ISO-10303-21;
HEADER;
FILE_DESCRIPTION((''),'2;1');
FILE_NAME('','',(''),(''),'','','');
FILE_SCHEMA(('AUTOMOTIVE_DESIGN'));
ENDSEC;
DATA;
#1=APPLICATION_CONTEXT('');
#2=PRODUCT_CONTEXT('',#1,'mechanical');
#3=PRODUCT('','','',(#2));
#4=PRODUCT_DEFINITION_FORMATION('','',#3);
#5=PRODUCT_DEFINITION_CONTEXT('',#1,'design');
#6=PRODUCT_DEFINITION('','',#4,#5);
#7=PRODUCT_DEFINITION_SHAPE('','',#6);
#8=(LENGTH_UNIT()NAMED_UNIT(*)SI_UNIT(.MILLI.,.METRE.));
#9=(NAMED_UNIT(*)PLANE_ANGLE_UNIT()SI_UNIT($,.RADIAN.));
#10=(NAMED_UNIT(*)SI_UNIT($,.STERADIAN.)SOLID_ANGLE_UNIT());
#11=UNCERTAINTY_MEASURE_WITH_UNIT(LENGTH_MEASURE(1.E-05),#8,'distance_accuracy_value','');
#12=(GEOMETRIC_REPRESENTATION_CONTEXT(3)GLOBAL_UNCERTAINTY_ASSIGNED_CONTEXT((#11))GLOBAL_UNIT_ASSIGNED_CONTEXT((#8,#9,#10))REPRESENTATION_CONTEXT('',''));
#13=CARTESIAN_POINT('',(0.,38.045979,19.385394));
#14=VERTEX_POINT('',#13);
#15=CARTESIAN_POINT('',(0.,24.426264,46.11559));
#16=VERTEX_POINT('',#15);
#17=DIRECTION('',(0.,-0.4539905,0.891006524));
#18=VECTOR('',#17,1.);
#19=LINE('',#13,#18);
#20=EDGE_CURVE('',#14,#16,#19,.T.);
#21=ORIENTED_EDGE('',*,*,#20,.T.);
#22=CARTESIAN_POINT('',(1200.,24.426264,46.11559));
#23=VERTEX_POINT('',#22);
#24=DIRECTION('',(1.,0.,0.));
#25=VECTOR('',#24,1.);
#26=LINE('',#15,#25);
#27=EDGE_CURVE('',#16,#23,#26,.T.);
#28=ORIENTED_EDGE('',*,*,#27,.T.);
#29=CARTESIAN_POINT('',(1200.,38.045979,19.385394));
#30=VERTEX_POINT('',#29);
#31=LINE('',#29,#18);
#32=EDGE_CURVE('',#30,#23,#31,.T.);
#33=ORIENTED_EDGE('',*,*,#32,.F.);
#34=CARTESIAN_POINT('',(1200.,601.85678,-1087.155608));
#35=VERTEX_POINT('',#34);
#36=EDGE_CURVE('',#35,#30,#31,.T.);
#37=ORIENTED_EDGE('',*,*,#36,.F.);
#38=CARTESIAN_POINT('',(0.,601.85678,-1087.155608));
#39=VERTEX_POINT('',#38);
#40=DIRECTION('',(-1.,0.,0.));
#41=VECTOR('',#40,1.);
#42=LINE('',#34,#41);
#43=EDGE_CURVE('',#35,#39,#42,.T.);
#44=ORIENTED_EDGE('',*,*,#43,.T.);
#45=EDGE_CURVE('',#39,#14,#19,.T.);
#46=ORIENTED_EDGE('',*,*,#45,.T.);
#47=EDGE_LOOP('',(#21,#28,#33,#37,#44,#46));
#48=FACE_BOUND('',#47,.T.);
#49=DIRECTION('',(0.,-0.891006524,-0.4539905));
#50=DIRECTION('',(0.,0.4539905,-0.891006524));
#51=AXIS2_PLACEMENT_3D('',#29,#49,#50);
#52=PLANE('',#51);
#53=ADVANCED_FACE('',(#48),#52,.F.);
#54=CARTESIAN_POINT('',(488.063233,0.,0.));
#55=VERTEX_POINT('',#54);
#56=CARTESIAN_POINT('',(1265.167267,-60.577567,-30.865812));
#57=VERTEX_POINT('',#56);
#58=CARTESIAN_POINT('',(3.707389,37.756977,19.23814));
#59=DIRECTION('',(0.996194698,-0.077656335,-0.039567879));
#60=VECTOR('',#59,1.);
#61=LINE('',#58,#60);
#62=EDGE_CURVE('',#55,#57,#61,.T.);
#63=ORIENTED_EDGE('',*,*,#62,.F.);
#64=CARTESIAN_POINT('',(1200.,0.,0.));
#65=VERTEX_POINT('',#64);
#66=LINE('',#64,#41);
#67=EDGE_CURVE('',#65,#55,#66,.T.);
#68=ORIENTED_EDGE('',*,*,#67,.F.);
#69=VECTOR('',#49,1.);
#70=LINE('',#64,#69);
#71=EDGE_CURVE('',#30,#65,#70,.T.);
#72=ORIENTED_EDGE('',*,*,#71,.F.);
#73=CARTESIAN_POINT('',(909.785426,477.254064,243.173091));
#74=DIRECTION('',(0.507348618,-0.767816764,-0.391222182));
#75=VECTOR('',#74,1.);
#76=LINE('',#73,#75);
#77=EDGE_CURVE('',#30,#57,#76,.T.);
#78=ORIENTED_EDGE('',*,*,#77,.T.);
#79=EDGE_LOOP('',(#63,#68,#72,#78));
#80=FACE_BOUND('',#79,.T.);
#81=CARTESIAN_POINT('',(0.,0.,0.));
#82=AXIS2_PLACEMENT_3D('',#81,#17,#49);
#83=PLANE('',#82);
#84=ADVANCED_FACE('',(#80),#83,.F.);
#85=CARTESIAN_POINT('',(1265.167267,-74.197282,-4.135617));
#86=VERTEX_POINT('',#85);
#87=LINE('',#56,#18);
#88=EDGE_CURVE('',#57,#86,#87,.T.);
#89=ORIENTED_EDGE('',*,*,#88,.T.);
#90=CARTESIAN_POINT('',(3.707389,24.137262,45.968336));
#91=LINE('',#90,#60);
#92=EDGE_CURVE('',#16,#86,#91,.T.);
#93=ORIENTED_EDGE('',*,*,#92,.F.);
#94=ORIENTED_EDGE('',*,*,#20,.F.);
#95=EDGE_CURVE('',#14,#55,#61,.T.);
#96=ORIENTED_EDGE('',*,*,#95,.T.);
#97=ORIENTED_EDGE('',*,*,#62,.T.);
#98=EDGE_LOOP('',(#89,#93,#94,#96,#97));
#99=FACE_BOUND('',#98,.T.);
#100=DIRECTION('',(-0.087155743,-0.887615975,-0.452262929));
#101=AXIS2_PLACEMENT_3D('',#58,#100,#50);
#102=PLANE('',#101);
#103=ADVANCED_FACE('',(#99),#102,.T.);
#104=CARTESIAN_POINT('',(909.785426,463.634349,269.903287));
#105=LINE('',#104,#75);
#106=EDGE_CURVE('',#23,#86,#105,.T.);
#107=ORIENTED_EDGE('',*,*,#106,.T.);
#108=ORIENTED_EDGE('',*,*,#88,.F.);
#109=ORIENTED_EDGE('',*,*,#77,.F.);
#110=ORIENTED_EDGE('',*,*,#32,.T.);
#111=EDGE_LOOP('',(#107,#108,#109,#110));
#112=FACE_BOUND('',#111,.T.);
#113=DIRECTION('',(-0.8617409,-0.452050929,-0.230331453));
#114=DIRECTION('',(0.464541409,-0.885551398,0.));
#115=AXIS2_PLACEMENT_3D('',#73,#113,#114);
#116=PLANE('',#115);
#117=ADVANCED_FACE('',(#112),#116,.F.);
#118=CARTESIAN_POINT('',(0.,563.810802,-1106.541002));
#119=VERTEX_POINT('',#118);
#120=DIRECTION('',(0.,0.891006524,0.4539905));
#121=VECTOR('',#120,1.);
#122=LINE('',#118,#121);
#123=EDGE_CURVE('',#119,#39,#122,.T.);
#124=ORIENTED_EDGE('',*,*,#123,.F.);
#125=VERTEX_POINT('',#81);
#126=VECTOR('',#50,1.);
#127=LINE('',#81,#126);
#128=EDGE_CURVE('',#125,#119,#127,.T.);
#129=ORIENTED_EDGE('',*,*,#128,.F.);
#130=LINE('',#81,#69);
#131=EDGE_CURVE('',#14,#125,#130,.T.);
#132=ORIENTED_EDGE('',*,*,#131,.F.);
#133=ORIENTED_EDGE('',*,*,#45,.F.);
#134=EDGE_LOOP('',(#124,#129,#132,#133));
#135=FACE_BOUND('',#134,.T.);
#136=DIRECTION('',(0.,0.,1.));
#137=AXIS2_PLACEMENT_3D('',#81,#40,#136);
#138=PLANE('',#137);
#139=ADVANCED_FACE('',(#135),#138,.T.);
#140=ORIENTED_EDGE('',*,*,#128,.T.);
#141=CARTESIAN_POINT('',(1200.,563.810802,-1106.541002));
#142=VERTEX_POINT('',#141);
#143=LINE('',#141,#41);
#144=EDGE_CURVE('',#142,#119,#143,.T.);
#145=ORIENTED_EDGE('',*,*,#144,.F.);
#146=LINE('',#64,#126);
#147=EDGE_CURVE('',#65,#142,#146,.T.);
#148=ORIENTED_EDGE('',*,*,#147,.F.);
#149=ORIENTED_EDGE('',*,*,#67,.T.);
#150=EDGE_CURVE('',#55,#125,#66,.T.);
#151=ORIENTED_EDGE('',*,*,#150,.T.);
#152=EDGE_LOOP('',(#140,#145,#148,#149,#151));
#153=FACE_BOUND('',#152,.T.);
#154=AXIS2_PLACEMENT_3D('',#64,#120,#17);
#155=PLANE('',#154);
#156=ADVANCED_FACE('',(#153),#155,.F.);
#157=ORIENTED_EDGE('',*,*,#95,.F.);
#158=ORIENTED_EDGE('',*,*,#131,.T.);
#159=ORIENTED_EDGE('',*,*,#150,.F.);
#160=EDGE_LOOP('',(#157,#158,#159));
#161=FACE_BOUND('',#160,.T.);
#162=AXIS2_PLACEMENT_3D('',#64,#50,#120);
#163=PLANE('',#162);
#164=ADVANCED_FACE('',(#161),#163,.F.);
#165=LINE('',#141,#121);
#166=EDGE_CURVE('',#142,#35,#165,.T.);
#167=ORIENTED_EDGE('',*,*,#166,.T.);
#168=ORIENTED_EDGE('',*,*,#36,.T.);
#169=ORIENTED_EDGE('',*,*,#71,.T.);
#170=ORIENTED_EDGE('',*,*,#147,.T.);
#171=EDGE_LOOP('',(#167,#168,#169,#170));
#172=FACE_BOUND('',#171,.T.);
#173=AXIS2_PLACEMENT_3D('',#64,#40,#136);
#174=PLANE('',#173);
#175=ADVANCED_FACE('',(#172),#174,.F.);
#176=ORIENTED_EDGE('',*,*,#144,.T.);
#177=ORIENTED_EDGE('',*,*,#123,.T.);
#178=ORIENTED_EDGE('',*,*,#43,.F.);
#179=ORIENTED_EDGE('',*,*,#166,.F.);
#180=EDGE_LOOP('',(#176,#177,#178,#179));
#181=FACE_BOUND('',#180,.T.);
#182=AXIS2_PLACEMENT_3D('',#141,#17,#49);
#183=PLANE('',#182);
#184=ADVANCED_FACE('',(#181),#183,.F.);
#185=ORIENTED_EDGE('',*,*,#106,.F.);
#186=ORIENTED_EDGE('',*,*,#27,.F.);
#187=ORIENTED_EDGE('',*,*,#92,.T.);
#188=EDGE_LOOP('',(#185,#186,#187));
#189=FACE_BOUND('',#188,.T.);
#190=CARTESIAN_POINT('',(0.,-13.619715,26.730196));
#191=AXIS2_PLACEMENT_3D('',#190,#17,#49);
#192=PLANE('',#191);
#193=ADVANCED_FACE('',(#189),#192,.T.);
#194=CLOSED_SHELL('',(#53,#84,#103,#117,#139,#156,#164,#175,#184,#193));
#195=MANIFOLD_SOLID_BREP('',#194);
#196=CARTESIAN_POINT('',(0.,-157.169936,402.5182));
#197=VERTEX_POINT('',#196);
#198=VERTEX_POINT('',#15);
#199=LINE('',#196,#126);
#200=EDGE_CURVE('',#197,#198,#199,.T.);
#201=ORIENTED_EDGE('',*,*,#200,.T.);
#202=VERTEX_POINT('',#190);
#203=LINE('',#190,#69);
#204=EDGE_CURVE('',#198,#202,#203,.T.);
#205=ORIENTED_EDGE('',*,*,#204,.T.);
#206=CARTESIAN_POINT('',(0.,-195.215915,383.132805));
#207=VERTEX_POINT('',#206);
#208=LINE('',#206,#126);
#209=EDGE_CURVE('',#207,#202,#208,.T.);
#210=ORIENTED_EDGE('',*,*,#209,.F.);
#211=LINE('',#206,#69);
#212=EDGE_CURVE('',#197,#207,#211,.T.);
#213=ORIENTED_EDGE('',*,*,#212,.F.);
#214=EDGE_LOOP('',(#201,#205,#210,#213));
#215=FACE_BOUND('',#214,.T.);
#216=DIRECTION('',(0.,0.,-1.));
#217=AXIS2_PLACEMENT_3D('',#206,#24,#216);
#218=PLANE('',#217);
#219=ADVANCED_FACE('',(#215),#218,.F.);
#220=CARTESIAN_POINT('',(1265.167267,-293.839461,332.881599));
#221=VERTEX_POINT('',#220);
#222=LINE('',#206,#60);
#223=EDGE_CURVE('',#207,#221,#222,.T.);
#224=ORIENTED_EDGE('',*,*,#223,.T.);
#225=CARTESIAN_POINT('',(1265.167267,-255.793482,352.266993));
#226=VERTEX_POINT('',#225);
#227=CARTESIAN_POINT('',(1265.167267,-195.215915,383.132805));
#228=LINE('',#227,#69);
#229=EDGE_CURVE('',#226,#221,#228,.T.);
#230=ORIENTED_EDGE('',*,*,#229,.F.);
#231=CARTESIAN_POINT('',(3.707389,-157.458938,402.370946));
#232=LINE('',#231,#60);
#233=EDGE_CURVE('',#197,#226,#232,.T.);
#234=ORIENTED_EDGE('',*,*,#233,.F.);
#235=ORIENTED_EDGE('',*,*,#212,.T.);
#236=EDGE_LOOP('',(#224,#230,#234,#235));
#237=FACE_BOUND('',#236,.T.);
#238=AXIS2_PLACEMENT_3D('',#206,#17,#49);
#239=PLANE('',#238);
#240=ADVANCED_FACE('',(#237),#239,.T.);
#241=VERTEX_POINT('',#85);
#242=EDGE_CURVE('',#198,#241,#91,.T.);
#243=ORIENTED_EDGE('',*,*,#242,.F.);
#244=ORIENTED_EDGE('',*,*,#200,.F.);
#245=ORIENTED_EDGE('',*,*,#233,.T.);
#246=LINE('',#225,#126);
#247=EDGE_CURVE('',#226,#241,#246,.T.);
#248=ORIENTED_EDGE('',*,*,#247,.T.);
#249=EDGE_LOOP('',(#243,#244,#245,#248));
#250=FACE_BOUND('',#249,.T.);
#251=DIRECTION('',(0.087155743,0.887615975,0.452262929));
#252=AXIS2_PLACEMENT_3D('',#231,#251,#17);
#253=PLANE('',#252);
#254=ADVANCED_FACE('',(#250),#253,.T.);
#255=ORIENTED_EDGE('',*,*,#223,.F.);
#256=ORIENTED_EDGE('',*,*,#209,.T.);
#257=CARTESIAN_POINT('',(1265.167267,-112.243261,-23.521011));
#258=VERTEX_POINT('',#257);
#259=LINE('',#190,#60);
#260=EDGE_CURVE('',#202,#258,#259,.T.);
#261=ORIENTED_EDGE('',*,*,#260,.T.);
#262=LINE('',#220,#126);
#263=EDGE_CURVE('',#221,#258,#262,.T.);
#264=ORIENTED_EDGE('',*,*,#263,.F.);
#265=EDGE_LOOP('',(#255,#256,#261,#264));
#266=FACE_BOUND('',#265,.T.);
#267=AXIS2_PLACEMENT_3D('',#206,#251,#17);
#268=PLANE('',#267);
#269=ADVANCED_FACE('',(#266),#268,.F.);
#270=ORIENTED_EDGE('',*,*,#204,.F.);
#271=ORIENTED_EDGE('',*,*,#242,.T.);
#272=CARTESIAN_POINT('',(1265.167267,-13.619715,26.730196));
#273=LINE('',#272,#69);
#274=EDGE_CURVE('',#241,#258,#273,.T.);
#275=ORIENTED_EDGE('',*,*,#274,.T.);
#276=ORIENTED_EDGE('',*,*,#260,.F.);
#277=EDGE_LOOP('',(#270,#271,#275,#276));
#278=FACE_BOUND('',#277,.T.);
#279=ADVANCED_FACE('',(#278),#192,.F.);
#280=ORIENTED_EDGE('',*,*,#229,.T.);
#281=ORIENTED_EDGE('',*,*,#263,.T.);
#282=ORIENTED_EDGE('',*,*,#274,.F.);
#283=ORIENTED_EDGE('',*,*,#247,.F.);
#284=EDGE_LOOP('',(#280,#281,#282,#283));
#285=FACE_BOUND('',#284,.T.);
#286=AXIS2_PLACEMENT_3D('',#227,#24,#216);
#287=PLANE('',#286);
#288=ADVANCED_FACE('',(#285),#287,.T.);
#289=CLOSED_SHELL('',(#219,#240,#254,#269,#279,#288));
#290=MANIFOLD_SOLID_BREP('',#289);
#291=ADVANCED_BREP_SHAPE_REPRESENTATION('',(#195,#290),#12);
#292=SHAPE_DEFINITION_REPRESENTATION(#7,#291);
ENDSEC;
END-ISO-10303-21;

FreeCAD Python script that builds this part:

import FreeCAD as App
import Part
import Sketcher
from FreeCAD import Vector
Q = App.Units.Quantity


def add_polygon(sketch, points):
    """Adds a closed chain of lines whose ends are joined by coincident constraints."""
    first, n = sketch.GeometryCount, len(points)
    for a, b in zip(points, points[1:] + points[:1]):
        sketch.addGeometry(Part.LineSegment(App.Vector(*a, 0), App.Vector(*b, 0)), False)
    for i in range(n):
        sketch.addConstraint(Sketcher.Constraint("Coincident", first + i, 2, first + (i + 1) % n, 1))

doc = App.newDocument("Part")
body = doc.addObject("PartDesign::Body", "Body")

sketch1 = body.newObject("Sketcher::SketchObject", "Sketch")
sketch1.AttachmentSupport = (doc.getObject("YZ_Plane"), [""])
sketch1.MapMode = "FlatFace"
add_polygon(sketch1, [(0, 0), (564, -1107), (602, -1087), (38, 19)])
sketch1.addConstraint(Sketcher.Constraint("Coincident", 3, 2, -1, 1))
sketch1.addConstraint(Sketcher.Constraint("Perpendicular", 0, 1))
sketch1.addConstraint(Sketcher.Constraint("Perpendicular", 1, 2))
sketch1.addConstraint(Sketcher.Constraint("Perpendicular", 2, 3))
sketch1.addConstraint(Sketcher.Constraint("Angle", 0, Q("-63 deg")))
sketch1.addConstraint(Sketcher.Constraint("Distance", 0, Q("1241.9 mm")))
sketch1.addConstraint(Sketcher.Constraint("Distance", 1, Q("42.7 mm")))
pad1 = body.newObject("PartDesign::Pad", "Pad")
pad1.Profile = sketch1
pad1.Length = 1200

sketch2 = body.newObject("Sketcher::SketchObject", "Sketch001")
sketch2.Placement = App.Placement(Vector(0, -13.619715, 26.730196), App.Rotation(Vector(1, 0, 0), Vector(0, 0.891006524, 0.4539905), Vector(0, -0.4539905, 0.891006524), "ZXY"))
add_polygon(sketch2, [(0, 43), (1265, -68), (1200, 43)])
sketch2.addConstraint(Sketcher.Constraint("Horizontal", 2))
sketch2.addConstraint(Sketcher.Constraint("PointOnObject", 2, 2, -2))
sketch2.addConstraint(Sketcher.Constraint("DistanceX", 2, 2, 2, 1, Q("1200 mm")))
sketch2.addConstraint(Sketcher.Constraint("Angle", 0, Q("-5 deg")))
sketch2.addConstraint(Sketcher.Constraint("Distance", 0, Q("1270 mm")))
sketch2.addConstraint(Sketcher.Constraint("DistanceY", -1, 1, 1, 2, Q("42.7 mm")))
pad2 = body.newObject("PartDesign::Pad", "Pad001")
pad2.Profile = sketch2
pad2.Length = 30
pad2.Reversed = True
body2 = doc.addObject("PartDesign::Body", "Body001")

sketch3 = body2.newObject("Sketcher::SketchObject", "Sketch002")
sketch3.Placement = App.Placement(Vector(0, -13.619715, 26.730196), App.Rotation(Vector(1, 0, 0), Vector(0, 0.891006524, 0.4539905), Vector(0, -0.4539905, 0.891006524), "ZXY"))
add_polygon(sketch3, [(1265, -111), (1265, -68), (0, 43), (0, 0)])
sketch3.addConstraint(Sketcher.Constraint("Vertical", 0))
sketch3.addConstraint(Sketcher.Constraint("Vertical", 2))
sketch3.addConstraint(Sketcher.Constraint("Coincident", 2, 2, -1, 1))
sketch3.addConstraint(Sketcher.Constraint("Parallel", 1, 3))
sketch3.addConstraint(Sketcher.Constraint("Angle", 1, Q("175 deg")))
sketch3.addConstraint(Sketcher.Constraint("Distance", 1, Q("1270 mm")))
sketch3.addConstraint(Sketcher.Constraint("DistanceY", 0, 1, 0, 2, Q("42.7 mm")))
pad3 = body2.newObject("PartDesign::Pad", "Pad002")
pad3.Profile = sketch3
pad3.Length = 400

doc.recompute()
